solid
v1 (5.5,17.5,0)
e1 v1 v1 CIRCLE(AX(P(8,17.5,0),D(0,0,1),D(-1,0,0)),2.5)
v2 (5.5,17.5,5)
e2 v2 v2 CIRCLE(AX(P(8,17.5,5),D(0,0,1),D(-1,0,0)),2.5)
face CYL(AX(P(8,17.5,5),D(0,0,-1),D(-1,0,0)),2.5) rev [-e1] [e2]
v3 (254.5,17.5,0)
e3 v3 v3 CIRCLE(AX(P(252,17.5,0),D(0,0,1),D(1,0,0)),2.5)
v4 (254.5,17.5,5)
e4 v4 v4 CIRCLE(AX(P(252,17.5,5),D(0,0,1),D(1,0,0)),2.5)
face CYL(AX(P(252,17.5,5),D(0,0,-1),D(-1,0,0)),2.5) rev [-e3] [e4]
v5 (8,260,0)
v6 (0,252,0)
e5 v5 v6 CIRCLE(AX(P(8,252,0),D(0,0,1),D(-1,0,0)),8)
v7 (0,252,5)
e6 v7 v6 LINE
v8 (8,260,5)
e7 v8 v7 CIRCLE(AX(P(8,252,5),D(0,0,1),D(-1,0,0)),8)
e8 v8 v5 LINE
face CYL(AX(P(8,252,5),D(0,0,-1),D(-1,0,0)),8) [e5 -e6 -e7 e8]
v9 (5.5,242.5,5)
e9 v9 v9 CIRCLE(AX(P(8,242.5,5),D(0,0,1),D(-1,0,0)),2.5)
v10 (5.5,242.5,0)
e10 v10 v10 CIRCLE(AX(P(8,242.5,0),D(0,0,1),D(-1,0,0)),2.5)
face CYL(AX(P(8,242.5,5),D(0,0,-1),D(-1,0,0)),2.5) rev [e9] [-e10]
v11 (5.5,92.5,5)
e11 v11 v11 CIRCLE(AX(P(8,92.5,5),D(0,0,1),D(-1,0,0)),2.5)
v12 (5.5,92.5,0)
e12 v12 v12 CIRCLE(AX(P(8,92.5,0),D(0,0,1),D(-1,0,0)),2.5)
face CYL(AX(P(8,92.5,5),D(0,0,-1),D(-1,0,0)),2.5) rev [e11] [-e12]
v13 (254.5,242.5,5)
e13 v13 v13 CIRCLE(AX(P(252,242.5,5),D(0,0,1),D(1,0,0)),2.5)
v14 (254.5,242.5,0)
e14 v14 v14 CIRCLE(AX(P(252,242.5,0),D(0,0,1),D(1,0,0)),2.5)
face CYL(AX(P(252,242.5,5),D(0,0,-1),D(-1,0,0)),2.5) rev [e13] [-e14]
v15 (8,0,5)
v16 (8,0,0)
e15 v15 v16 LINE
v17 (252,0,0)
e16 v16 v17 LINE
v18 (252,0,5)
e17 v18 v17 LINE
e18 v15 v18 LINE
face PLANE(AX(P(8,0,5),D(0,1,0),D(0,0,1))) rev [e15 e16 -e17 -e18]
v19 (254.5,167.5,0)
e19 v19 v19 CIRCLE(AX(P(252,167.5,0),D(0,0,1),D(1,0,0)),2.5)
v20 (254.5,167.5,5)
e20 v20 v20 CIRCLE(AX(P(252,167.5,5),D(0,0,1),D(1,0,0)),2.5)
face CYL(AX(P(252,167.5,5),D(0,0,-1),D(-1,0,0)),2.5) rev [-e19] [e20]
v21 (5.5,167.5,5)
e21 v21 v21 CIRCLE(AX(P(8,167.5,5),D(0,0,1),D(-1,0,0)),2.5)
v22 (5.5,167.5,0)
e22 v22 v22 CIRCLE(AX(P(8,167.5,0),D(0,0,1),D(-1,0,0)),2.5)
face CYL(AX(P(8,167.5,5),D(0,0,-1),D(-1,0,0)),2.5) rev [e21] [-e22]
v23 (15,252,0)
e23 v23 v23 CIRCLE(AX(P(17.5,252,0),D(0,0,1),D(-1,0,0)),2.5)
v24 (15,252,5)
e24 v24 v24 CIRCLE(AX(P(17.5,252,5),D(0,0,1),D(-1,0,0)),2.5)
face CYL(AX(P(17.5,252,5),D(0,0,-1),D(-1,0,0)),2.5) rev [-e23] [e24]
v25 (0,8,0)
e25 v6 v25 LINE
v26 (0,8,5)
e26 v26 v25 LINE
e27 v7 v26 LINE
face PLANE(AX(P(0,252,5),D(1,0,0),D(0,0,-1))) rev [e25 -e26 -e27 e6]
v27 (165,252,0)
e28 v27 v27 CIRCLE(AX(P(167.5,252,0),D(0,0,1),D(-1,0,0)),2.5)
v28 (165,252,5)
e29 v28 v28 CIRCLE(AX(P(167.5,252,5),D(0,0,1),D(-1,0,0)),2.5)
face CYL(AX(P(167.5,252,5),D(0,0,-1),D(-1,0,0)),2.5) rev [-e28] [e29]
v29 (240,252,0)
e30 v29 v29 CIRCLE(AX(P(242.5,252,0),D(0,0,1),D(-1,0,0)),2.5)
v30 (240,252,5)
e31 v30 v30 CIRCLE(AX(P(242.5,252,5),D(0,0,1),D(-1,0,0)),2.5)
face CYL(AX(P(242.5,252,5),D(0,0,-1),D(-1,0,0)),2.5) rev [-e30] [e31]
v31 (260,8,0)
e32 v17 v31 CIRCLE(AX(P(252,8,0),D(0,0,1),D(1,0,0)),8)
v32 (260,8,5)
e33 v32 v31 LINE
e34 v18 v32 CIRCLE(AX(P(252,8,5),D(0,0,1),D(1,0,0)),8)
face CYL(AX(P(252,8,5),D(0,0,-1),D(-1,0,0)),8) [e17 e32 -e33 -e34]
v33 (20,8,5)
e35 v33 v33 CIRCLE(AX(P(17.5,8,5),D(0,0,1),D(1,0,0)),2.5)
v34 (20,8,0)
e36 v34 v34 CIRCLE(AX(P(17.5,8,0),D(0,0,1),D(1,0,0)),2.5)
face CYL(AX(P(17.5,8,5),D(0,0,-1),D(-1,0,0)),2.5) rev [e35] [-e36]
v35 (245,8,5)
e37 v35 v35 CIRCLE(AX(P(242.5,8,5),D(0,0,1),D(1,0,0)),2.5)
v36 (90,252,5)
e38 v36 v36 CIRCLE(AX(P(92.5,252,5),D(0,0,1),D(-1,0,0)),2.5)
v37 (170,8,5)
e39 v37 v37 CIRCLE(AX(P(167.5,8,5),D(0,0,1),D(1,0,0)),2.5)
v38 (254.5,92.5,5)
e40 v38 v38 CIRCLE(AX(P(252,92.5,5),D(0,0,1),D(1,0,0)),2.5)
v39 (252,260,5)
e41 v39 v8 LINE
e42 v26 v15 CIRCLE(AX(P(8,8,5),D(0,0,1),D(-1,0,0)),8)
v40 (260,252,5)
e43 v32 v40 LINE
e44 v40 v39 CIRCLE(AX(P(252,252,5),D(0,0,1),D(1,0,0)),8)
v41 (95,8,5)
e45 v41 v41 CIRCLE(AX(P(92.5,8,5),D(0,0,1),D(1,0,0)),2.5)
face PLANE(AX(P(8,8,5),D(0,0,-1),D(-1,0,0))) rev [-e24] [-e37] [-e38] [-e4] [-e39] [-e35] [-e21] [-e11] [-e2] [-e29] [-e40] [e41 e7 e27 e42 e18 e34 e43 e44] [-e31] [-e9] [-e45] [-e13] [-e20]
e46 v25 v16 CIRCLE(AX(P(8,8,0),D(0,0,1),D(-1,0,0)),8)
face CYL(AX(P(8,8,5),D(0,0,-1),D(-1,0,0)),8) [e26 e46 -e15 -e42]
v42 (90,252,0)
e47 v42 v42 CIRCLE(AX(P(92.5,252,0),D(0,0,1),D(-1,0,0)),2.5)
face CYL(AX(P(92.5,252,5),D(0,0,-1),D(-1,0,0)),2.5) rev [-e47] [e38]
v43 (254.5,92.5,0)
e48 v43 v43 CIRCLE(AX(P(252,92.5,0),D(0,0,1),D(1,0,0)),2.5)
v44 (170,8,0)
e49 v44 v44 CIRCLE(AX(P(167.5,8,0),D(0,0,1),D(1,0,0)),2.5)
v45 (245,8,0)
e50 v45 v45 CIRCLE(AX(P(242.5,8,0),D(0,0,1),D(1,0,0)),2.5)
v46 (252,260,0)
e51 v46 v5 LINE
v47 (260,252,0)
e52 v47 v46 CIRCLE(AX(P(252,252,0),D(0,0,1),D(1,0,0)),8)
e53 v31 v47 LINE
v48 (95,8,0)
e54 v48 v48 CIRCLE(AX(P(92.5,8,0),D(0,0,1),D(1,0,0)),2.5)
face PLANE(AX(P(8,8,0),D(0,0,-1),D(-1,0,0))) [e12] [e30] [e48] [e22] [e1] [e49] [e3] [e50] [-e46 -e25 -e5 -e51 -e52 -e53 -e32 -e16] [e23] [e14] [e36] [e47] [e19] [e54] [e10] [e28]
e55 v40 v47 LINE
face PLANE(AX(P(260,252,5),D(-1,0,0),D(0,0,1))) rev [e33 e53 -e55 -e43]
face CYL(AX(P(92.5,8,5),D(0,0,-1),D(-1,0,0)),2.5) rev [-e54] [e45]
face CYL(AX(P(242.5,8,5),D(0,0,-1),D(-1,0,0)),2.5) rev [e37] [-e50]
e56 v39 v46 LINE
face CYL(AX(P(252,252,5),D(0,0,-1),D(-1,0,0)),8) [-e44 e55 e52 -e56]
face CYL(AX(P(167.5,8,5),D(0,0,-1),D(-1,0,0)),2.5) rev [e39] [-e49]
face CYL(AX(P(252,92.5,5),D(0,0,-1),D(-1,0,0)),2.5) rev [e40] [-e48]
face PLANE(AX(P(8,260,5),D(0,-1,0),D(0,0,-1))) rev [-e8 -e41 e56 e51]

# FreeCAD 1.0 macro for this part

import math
import FreeCAD as App
import Part
import Sketcher

V = App.Vector

doc = App.newDocument("Part")
params = doc.addObject("Spreadsheet::Sheet", "Params")
for row, (alias, value) in enumerate([
    ("sketch1_diameter", "5 mm"),
    ("sketch1_radius", "8 mm"),
    ("sketch1_width", "244 mm"),
    ("pad1_length", "5 mm"),
], start=1):
    params.set(f"A{row}", alias)
    params.set(f"B{row}", "=" + value)
    params.setAlias(f"B{row}", alias)

body = doc.addObject("PartDesign::Body", "Body")

# Sketch on XY plane
sketch1 = body.newObject("Sketcher::SketchObject", "Sketch")
sketch1.AttachmentSupport = (doc.getObject("XY_Plane"), [""])
sketch1.MapMode = "FlatFace"
sketch1.addGeometry(Part.LineSegment(V(252, 260, 0), V(8, 260, 0)), False)
sketch1.addGeometry(Part.ArcOfCircle(Part.Circle(V(8, 252, 0), V(0, 0, 1), 8), math.radians(90), math.radians(180)), False)
sketch1.addGeometry(Part.LineSegment(V(0, 252, 0), V(0, 8, 0)), False)
sketch1.addGeometry(Part.ArcOfCircle(Part.Circle(V(8, 8, 0), V(0, 0, 1), 8), math.radians(-180), math.radians(-90)), False)
sketch1.addGeometry(Part.LineSegment(V(8, 0, 0), V(252, 0, 0)), False)
sketch1.addGeometry(Part.ArcOfCircle(Part.Circle(V(252, 8, 0), V(0, 0, 1), 8), math.radians(-90), math.radians(0)), False)
sketch1.addGeometry(Part.LineSegment(V(260, 8, 0), V(260, 252, 0)), False)
sketch1.addGeometry(Part.ArcOfCircle(Part.Circle(V(252, 252, 0), V(0, 0, 1), 8), math.radians(0), math.radians(90)), False)
sketch1.addGeometry(Part.Circle(V(242.5, 8, 0), V(0, 0, 1), 2.5), False)
sketch1.addGeometry(Part.Circle(V(252, 17.5, 0), V(0, 0, 1), 2.5), False)
sketch1.addGeometry(Part.Circle(V(167.5, 8, 0), V(0, 0, 1), 2.5), False)
sketch1.addGeometry(Part.Circle(V(252, 92.5, 0), V(0, 0, 1), 2.5), False)
sketch1.addGeometry(Part.Circle(V(92.5, 8, 0), V(0, 0, 1), 2.5), False)
sketch1.addGeometry(Part.Circle(V(17.5, 8, 0), V(0, 0, 1), 2.5), False)
sketch1.addGeometry(Part.Circle(V(8, 17.5, 0), V(0, 0, 1), 2.5), False)
sketch1.addGeometry(Part.Circle(V(8, 92.5, 0), V(0, 0, 1), 2.5), False)
sketch1.addGeometry(Part.Circle(V(252, 167.5, 0), V(0, 0, 1), 2.5), False)
sketch1.addGeometry(Part.Circle(V(252, 242.5, 0), V(0, 0, 1), 2.5), False)
sketch1.addGeometry(Part.Circle(V(242.5, 252, 0), V(0, 0, 1), 2.5), False)
sketch1.addGeometry(Part.Circle(V(167.5, 252, 0), V(0, 0, 1), 2.5), False)
sketch1.addGeometry(Part.Circle(V(8, 167.5, 0), V(0, 0, 1), 2.5), False)
sketch1.addGeometry(Part.Circle(V(92.5, 252, 0), V(0, 0, 1), 2.5), False)
sketch1.addGeometry(Part.Circle(V(8, 242.5, 0), V(0, 0, 1), 2.5), False)
sketch1.addGeometry(Part.Circle(V(17.5, 252, 0), V(0, 0, 1), 2.5), False)
sketch1.addConstraint(Sketcher.Constraint("Tangent", 0, 2, 1, 1))
sketch1.addConstraint(Sketcher.Constraint("Tangent", 1, 2, 2, 1))
sketch1.addConstraint(Sketcher.Constraint("Tangent", 2, 2, 3, 1))
sketch1.addConstraint(Sketcher.Constraint("Tangent", 3, 2, 4, 1))
sketch1.addConstraint(Sketcher.Constraint("Tangent", 4, 2, 5, 1))
sketch1.addConstraint(Sketcher.Constraint("Tangent", 5, 2, 6, 1))
sketch1.addConstraint(Sketcher.Constraint("Tangent", 6, 2, 7, 1))
sketch1.addConstraint(Sketcher.Constraint("Tangent", 7, 2, 0, 1))
sketch1.addConstraint(Sketcher.Constraint("Horizontal", 0))
sketch1.addConstraint(Sketcher.Constraint("Vertical", 2))
sketch1.addConstraint(Sketcher.Constraint("Horizontal", 4))
sketch1.addConstraint(Sketcher.Constraint("Vertical", 6))
sketch1.addConstraint(Sketcher.Constraint("Equal", 1, 3))
sketch1.addConstraint(Sketcher.Constraint("Equal", 3, 5))
sketch1.addConstraint(Sketcher.Constraint("Equal", 5, 7))
sketch1.addConstraint(Sketcher.Constraint("Equal", 8, 9))
sketch1.addConstraint(Sketcher.Constraint("Equal", 9, 10))
sketch1.addConstraint(Sketcher.Constraint("Equal", 10, 11))
sketch1.addConstraint(Sketcher.Constraint("Equal", 11, 12))
sketch1.addConstraint(Sketcher.Constraint("Equal", 12, 13))
sketch1.addConstraint(Sketcher.Constraint("Equal", 13, 14))
sketch1.addConstraint(Sketcher.Constraint("Equal", 14, 15))
sketch1.addConstraint(Sketcher.Constraint("Equal", 15, 16))
sketch1.addConstraint(Sketcher.Constraint("Equal", 16, 17))
sketch1.addConstraint(Sketcher.Constraint("Equal", 17, 18))
sketch1.addConstraint(Sketcher.Constraint("Equal", 18, 19))
sketch1.addConstraint(Sketcher.Constraint("Equal", 19, 20))
sketch1.addConstraint(Sketcher.Constraint("Equal", 20, 21))
sketch1.addConstraint(Sketcher.Constraint("Equal", 21, 22))
sketch1.addConstraint(Sketcher.Constraint("Equal", 22, 23))
sketch1.addConstraint(Sketcher.Constraint("PointOnObject", 1, 2, -2))
sketch1.addConstraint(Sketcher.Constraint("PointOnObject", 3, 2, -1))
sketch1.addConstraint(Sketcher.Constraint("Horizontal", 5, 3, 8, 3))
sketch1.addConstraint(Sketcher.Constraint("Horizontal", 8, 3, 10, 3))
sketch1.addConstraint(Sketcher.Constraint("Horizontal", 10, 3, 12, 3))
sketch1.addConstraint(Sketcher.Constraint("Horizontal", 12, 3, 13, 3))
sketch1.addConstraint(Sketcher.Constraint("Horizontal", 9, 3, 14, 3))
sketch1.addConstraint(Sketcher.Constraint("Horizontal", 11, 3, 15, 3))
sketch1.addConstraint(Sketcher.Constraint("Horizontal", 7, 3, 18, 3))
sketch1.addConstraint(Sketcher.Constraint("Horizontal", 18, 3, 19, 3))
sketch1.addConstraint(Sketcher.Constraint("Horizontal", 16, 3, 20, 3))
sketch1.addConstraint(Sketcher.Constraint("Horizontal", 19, 3, 21, 3))
sketch1.addConstraint(Sketcher.Constraint("Horizontal", 17, 3, 22, 3))
sketch1.addConstraint(Sketcher.Constraint("Horizontal", 21, 3, 23, 3))
sketch1.addConstraint(Sketcher.Constraint("Vertical", 7, 3, 9, 3))
sketch1.addConstraint(Sketcher.Constraint("Vertical", 9, 3, 11, 3))
sketch1.addConstraint(Sketcher.Constraint("Vertical", 3, 3, 14, 3))
sketch1.addConstraint(Sketcher.Constraint("Vertical", 14, 3, 15, 3))
sketch1.addConstraint(Sketcher.Constraint("Vertical", 11, 3, 16, 3))
sketch1.addConstraint(Sketcher.Constraint("Vertical", 16, 3, 17, 3))
sketch1.addConstraint(Sketcher.Constraint("Vertical", 8, 3, 18, 3))
sketch1.addConstraint(Sketcher.Constraint("Vertical", 10, 3, 19, 3))
sketch1.addConstraint(Sketcher.Constraint("Vertical", 15, 3, 20, 3))
sketch1.addConstraint(Sketcher.Constraint("Vertical", 12, 3, 21, 3))
sketch1.addConstraint(Sketcher.Constraint("Vertical", 20, 3, 22, 3))
sketch1.addConstraint(Sketcher.Constraint("Vertical", 13, 3, 23, 3))
sketch1.addConstraint(Sketcher.Constraint("Equal", 4, 2))
sketch1.addConstraint(Sketcher.Constraint("Diameter", 8, 5.0))
sketch1.addConstraint(Sketcher.Constraint("Radius", 1, 8.0))
sketch1.addConstraint(Sketcher.Constraint("DistanceX", 0, 2, 0, 1, 244.0))
sketch1.addConstraint(Sketcher.Constraint("DistanceX", 10, 3, 8, 3, 75.0))
sketch1.addConstraint(Sketcher.Constraint("DistanceY", 9, 3, 11, 3, 75.0))
sketch1.addConstraint(Sketcher.Constraint("DistanceX", 12, 3, 10, 3, 75.0))
sketch1.addConstraint(Sketcher.Constraint("DistanceX", 13, 3, 12, 3, 75.0))
sketch1.addConstraint(Sketcher.Constraint("DistanceY", 11, 3, 16, 3, 75.0))
sketch1.addConstraint(Sketcher.Constraint("DistanceY", 16, 3, 17, 3, 75.0))
sketch1.addConstraint(Sketcher.Constraint("DistanceX", -1, 1, 8, 3, 242.5))
sketch1.addConstraint(Sketcher.Constraint("DistanceY", -1, 1, 9, 3, 17.5))
sketch1.setExpression("Constraints[57]", "Params.sketch1_diameter")
sketch1.setExpression("Constraints[58]", "Params.sketch1_radius")
sketch1.setExpression("Constraints[59]", "Params.sketch1_width")
pad1 = body.newObject("PartDesign::Pad", "Pad")
pad1.Profile = sketch1
pad1.setExpression("Length", "Params.pad1_length")

doc.recompute()
